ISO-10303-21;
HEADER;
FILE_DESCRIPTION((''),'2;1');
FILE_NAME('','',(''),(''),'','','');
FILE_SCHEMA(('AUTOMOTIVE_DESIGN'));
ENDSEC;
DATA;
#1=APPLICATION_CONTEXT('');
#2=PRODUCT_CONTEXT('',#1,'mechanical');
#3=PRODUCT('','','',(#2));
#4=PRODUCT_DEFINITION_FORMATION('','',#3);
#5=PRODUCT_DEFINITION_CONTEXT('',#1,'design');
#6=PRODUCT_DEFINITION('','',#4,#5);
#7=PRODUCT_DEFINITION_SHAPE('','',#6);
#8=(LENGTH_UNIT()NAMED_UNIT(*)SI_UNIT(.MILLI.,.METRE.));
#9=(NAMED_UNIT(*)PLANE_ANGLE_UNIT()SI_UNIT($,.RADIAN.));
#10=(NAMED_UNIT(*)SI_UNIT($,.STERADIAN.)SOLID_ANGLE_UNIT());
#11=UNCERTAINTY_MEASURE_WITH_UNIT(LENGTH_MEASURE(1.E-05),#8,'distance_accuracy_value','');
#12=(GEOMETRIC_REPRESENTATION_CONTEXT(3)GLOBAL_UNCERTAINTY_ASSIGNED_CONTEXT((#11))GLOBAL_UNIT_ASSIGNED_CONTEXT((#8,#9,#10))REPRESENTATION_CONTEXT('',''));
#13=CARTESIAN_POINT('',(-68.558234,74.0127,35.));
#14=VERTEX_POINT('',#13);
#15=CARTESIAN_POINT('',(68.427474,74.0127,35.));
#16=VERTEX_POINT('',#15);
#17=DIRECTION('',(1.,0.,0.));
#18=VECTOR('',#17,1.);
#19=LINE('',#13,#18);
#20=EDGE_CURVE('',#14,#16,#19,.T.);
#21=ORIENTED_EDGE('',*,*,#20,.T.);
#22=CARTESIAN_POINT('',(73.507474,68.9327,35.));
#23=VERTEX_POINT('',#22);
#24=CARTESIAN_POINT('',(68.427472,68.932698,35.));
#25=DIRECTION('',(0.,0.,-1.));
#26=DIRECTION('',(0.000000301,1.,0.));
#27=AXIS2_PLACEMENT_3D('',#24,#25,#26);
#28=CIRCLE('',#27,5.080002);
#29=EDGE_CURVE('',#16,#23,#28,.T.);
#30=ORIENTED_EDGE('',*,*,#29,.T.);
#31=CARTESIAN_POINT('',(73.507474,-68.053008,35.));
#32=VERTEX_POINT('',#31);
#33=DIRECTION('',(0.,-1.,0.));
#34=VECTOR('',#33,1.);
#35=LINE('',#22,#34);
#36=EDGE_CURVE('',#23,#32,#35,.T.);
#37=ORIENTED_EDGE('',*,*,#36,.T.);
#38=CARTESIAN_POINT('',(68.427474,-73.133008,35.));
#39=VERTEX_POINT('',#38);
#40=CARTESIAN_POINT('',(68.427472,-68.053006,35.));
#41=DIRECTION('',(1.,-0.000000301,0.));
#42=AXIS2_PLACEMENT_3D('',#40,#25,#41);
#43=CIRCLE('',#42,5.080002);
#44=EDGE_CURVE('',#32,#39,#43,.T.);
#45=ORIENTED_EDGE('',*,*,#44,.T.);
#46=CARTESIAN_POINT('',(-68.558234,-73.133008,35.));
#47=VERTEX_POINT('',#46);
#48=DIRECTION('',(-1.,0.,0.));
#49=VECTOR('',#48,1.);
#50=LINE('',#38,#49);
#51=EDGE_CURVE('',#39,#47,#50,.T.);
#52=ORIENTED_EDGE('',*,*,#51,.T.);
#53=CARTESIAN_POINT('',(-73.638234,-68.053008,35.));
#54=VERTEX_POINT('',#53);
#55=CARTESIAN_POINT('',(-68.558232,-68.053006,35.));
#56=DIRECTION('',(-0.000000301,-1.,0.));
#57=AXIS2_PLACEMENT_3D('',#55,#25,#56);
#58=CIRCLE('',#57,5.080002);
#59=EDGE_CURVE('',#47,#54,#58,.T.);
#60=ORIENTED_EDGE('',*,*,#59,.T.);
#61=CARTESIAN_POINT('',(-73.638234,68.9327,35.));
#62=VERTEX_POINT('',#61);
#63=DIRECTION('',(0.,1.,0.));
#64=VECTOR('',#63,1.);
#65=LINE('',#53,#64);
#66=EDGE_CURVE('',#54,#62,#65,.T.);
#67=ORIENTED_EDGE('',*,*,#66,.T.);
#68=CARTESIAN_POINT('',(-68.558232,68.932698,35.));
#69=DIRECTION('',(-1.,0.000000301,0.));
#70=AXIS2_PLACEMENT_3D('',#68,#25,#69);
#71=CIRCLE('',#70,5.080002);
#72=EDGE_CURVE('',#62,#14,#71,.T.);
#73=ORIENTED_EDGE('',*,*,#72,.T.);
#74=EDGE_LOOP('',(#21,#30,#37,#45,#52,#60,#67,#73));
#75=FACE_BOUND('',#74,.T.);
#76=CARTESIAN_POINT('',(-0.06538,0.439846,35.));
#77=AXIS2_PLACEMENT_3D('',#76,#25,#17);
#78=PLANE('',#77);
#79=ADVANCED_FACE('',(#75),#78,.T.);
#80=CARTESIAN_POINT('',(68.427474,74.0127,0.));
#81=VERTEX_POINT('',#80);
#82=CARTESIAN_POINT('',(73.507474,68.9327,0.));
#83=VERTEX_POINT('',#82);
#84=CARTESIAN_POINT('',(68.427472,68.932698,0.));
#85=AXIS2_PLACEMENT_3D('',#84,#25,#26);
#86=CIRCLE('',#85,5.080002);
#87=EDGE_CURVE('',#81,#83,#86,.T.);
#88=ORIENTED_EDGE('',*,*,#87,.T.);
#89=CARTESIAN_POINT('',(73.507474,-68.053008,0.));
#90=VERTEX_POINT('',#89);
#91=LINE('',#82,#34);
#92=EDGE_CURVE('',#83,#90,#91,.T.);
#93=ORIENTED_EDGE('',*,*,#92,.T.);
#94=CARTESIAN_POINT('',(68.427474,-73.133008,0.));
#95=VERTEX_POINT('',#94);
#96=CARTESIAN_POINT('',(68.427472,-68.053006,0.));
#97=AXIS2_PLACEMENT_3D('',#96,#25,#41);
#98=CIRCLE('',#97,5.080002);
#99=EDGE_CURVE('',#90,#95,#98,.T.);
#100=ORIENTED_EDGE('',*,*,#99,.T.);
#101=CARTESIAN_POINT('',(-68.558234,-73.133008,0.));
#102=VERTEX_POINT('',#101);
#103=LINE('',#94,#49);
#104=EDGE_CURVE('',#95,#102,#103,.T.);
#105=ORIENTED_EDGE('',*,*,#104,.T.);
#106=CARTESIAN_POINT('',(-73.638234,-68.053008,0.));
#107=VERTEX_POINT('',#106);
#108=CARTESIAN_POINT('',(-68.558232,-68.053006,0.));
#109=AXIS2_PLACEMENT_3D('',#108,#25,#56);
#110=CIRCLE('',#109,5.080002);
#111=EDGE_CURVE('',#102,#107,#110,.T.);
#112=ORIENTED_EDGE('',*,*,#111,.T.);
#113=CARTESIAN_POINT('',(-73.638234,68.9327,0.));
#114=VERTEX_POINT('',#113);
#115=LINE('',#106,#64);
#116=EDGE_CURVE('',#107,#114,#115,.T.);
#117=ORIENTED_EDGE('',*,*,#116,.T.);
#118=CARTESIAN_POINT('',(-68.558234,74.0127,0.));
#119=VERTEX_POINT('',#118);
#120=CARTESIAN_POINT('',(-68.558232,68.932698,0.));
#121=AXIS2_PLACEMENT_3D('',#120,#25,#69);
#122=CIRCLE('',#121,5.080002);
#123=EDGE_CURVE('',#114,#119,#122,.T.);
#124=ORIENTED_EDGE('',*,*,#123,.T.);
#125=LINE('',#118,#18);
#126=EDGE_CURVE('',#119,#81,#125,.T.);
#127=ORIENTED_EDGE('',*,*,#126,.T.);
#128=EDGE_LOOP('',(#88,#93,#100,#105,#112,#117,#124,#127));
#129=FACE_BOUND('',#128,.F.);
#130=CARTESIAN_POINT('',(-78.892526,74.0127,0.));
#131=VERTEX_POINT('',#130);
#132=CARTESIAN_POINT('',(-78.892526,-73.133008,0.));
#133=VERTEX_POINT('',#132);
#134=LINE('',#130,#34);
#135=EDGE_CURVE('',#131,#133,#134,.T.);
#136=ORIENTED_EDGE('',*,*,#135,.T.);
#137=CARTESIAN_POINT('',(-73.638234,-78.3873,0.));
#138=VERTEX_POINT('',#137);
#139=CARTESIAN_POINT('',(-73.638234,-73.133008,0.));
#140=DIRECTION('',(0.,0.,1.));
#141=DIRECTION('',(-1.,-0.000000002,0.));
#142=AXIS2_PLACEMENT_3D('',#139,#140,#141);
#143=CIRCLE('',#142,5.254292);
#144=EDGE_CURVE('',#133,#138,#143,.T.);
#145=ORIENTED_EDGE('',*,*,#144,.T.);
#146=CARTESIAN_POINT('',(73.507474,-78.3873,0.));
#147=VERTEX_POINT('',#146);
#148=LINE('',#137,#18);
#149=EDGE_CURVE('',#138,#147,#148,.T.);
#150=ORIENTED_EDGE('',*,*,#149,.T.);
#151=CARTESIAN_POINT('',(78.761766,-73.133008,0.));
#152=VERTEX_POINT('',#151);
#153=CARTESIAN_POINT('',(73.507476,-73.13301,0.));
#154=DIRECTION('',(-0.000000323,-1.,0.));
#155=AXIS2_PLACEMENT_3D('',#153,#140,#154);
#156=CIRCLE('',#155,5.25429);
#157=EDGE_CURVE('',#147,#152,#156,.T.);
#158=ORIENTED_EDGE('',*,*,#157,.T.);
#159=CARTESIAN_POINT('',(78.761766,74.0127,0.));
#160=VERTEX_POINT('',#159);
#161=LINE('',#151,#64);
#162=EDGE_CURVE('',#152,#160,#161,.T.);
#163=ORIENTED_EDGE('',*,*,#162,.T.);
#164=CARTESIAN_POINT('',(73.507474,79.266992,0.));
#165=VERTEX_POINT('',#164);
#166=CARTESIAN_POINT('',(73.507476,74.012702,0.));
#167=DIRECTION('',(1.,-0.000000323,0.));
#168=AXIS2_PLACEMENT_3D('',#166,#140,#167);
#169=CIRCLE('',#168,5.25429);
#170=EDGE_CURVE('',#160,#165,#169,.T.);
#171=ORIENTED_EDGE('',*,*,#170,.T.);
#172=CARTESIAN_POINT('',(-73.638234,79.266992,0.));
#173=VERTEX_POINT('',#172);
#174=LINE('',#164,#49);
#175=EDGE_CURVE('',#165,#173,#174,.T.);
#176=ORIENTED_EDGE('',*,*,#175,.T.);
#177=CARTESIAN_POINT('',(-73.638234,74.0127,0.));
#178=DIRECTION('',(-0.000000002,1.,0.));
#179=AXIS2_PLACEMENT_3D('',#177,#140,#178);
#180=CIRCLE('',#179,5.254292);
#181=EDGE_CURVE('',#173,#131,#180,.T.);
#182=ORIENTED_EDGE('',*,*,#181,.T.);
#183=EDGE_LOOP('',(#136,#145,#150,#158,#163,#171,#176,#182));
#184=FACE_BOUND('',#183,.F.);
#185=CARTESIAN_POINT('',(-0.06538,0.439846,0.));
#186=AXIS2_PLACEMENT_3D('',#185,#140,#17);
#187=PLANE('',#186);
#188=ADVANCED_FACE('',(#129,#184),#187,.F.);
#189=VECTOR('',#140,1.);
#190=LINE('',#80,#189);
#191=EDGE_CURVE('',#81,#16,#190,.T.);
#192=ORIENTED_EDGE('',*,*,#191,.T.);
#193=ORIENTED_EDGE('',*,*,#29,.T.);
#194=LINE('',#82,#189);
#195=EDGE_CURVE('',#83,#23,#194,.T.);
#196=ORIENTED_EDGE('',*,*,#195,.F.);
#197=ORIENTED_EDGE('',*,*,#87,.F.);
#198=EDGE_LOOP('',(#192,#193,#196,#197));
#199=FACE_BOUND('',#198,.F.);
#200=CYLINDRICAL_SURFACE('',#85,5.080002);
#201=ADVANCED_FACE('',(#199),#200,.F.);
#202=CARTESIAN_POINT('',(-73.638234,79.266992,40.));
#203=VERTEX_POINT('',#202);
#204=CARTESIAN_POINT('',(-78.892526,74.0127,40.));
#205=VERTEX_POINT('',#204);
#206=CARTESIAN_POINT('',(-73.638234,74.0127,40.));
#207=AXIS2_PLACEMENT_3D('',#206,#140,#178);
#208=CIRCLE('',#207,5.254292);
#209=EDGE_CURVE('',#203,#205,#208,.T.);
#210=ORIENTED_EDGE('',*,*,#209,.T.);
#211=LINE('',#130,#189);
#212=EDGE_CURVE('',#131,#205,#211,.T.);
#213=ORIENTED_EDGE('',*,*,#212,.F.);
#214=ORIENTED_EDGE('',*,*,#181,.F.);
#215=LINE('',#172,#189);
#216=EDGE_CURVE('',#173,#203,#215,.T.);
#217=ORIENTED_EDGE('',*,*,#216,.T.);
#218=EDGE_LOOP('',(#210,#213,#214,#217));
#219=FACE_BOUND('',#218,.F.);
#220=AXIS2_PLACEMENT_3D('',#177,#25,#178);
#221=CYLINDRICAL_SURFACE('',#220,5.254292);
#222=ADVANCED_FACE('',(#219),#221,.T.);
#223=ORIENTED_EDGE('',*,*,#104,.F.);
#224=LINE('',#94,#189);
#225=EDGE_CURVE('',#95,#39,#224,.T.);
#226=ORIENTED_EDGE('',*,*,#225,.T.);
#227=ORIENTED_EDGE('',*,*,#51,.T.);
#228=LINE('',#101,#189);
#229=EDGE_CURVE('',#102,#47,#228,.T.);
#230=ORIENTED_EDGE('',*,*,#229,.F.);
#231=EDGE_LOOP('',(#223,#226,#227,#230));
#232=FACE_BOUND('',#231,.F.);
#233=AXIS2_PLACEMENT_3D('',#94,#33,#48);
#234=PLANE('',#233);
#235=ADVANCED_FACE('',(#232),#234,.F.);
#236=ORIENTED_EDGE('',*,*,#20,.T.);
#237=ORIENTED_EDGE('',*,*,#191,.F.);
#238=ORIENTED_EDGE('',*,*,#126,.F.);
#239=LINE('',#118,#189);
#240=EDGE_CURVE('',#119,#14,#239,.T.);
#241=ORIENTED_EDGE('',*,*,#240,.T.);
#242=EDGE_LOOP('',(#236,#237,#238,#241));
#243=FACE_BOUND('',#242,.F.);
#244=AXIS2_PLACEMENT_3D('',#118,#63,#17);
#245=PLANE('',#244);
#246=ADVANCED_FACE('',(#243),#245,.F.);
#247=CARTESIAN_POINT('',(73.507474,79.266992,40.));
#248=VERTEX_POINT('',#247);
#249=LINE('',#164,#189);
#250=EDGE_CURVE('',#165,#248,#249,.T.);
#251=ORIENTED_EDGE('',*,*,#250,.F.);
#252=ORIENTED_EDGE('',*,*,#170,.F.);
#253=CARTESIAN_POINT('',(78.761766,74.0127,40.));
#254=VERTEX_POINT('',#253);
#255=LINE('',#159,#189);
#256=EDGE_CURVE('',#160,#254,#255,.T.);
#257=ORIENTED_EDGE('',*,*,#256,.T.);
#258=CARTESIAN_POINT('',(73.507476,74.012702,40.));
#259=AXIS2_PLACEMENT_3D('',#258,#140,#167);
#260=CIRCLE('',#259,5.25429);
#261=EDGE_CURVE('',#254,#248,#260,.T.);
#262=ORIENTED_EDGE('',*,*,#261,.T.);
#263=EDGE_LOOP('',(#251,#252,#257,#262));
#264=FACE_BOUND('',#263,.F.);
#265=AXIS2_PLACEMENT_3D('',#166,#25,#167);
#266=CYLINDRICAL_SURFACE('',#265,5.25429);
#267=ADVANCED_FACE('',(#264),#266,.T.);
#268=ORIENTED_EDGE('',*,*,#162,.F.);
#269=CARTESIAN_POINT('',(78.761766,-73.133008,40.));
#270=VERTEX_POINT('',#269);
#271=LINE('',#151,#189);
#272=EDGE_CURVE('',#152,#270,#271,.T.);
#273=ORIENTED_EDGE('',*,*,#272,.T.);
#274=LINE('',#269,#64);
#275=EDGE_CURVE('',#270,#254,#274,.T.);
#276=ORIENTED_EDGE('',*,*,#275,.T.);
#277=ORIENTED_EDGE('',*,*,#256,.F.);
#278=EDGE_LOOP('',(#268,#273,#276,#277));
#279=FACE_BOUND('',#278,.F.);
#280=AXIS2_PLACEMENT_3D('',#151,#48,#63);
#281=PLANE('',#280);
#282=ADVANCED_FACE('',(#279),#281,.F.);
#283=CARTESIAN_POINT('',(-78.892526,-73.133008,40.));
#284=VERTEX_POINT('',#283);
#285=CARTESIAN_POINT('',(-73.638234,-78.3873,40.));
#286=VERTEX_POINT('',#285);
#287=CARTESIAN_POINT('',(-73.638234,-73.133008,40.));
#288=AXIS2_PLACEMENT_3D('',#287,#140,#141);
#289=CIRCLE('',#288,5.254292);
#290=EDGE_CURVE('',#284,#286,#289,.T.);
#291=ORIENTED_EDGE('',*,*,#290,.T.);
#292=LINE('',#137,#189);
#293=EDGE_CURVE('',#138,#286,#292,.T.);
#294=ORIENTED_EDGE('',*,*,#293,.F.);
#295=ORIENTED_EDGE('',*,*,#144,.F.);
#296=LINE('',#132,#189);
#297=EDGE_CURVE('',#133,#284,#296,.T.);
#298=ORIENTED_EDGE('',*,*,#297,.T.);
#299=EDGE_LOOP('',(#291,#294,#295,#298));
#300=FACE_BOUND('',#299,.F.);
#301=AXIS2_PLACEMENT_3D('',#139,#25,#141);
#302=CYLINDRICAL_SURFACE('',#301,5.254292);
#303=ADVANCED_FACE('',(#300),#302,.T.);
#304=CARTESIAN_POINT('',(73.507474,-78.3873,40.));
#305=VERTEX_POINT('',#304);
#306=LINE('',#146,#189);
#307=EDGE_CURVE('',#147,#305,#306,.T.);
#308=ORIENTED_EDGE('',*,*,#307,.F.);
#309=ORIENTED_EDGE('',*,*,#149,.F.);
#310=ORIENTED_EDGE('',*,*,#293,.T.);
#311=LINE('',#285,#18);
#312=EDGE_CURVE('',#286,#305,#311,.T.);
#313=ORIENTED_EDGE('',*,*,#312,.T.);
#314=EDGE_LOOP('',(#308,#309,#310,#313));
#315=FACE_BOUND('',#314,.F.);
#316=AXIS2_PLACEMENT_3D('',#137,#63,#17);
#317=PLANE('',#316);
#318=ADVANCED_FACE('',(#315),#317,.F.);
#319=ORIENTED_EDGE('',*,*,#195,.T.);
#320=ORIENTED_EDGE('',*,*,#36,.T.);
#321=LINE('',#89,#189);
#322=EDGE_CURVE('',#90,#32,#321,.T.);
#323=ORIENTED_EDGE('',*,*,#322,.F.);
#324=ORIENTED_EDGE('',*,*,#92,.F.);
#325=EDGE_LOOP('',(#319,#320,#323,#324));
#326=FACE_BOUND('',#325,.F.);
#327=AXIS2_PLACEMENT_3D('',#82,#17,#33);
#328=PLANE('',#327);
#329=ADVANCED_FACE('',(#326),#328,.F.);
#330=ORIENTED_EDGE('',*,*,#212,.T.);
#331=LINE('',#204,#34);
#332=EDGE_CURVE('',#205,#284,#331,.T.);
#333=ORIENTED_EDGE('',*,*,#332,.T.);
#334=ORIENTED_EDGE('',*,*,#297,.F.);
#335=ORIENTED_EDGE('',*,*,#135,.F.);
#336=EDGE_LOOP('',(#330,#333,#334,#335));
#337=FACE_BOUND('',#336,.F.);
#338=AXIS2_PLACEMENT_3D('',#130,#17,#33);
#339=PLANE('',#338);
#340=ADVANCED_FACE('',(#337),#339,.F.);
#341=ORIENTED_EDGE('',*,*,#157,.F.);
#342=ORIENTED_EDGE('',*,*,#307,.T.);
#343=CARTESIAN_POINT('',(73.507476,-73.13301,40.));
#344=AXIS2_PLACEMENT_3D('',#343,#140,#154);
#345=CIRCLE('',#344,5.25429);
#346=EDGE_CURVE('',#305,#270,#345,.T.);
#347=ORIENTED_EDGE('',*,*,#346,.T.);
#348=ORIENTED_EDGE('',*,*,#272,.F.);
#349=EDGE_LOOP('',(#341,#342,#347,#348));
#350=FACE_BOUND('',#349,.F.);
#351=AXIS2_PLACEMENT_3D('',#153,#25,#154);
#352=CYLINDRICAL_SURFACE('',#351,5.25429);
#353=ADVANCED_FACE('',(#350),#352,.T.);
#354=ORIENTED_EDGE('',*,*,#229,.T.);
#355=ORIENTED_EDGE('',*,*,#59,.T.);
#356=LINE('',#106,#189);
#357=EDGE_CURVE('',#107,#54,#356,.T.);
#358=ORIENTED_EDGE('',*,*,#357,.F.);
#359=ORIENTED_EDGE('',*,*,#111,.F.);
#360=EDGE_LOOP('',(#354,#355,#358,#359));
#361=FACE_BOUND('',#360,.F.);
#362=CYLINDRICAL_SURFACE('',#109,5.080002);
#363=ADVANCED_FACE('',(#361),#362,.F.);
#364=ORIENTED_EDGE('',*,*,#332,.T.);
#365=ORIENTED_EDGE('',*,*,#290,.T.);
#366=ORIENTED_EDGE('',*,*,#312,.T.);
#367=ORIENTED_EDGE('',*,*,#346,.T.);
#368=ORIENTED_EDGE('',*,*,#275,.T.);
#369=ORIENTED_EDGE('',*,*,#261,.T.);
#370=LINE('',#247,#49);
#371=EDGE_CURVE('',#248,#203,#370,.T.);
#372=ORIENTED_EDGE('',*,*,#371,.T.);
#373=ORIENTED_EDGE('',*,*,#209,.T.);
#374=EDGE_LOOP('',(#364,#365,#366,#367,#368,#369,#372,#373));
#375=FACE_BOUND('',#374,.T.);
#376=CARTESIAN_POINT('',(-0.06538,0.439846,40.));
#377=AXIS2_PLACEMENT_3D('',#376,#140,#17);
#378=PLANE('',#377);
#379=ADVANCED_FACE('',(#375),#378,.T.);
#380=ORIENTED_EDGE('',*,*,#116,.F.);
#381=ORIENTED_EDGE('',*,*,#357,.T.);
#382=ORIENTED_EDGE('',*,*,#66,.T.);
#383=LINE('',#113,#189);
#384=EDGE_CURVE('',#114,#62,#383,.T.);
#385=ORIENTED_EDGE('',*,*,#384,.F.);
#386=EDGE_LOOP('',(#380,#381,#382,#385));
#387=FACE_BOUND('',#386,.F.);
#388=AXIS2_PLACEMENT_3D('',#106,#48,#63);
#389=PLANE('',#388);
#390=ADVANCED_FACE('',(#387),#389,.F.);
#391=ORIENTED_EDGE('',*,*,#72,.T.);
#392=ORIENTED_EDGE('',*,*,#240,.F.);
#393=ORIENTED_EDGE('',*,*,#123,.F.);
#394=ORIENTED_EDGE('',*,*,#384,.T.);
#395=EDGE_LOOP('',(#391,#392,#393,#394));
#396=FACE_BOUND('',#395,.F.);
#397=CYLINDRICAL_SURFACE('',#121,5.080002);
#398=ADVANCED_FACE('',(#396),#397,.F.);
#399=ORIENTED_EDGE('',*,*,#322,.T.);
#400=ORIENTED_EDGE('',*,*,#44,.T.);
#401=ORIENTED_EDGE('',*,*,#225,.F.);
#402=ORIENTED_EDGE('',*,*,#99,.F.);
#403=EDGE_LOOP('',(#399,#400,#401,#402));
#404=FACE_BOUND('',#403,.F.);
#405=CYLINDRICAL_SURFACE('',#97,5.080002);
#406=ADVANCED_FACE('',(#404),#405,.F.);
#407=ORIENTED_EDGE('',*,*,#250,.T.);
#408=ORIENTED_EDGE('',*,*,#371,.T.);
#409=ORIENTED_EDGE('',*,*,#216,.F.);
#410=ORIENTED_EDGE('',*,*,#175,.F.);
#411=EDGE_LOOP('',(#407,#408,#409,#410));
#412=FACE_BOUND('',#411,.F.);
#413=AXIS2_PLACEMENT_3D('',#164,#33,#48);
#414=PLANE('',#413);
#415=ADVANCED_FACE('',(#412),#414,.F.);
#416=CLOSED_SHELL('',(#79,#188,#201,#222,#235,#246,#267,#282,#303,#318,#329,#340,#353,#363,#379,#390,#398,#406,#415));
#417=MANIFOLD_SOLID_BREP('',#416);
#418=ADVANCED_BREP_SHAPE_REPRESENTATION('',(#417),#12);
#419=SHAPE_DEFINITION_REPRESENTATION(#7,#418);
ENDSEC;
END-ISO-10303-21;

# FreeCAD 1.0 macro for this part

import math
import FreeCAD as App
import Part
import Sketcher
from FreeCAD import Vector

doc = App.newDocument("Part")
body = doc.addObject("PartDesign::Body", "Body")

sketch1 = body.newObject("Sketcher::SketchObject", "Sketch")
sketch1.AttachmentSupport = (doc.getObject("XY_Plane"), [""])
sketch1.MapMode = "FlatFace"
sketch1.addGeometry([
    Part.LineSegment(Vector(73.507474, 79.266992, 0), Vector(-73.638234, 79.266992, 0)),
    Part.ArcOfCircle(Part.Circle(Vector(-73.638234, 74.0127, 0), Vector(0, 0, 1), 5.254292), math.radians(90), math.radians(180)),
    Part.LineSegment(Vector(-78.892526, 74.0127, 0), Vector(-78.892526, -73.133008, 0)),
    Part.ArcOfCircle(Part.Circle(Vector(-73.638234, -73.133008, 0), Vector(0, 0, 1), 5.254292), math.radians(-180), math.radians(-90)),
    Part.LineSegment(Vector(-73.638234, -78.3873, 0), Vector(73.507474, -78.3873, 0)),
    Part.ArcOfCircle(Part.Circle(Vector(73.507476, -73.13301, 0), Vector(0, 0, 1), 5.25429), math.radians(-90.000018), math.radians(0.000018)),
    Part.LineSegment(Vector(78.761766, -73.133008, 0), Vector(78.761766, 74.0127, 0)),
    Part.ArcOfCircle(Part.Circle(Vector(73.507476, 74.012702, 0), Vector(0, 0, 1), 5.25429), math.radians(-0.000018), math.radians(90.000018)),
], False)
sketch1.addConstraint([
    Sketcher.Constraint("Tangent", 0, 2, 1, 1),
    Sketcher.Constraint("Tangent", 1, 2, 2, 1),
    Sketcher.Constraint("Tangent", 2, 2, 3, 1),
    Sketcher.Constraint("Tangent", 3, 2, 4, 1),
    Sketcher.Constraint("Tangent", 4, 2, 5, 1),
    Sketcher.Constraint("Tangent", 5, 2, 6, 1),
    Sketcher.Constraint("Tangent", 6, 2, 7, 1),
    Sketcher.Constraint("Tangent", 7, 2, 0, 1),
    Sketcher.Constraint("Horizontal", 0),
    Sketcher.Constraint("Vertical", 2),
    Sketcher.Constraint("Horizontal", 4),
    Sketcher.Constraint("Vertical", 6),
    Sketcher.Constraint("Equal", 1, 3),
    Sketcher.Constraint("Equal", 3, 5),
    Sketcher.Constraint("Equal", 5, 7),
    Sketcher.Constraint("Equal", 4, 2),
    Sketcher.Constraint("DistanceY", 3, 3, 0, 2, 152.4),
    Sketcher.Constraint("Radius", 5, 5.25429),
    Sketcher.Constraint("DistanceY", -1, 1, 1, 3, 74.0127),
    Sketcher.Constraint("DistanceX", 1, 3, -1, 1, 73.638234),
])
pad1 = body.newObject("PartDesign::Pad", "Pad")
pad1.Profile = sketch1
pad1.Length = 40

sketch2 = body.newObject("Sketcher::SketchObject", "Sketch001")
sketch2.AttachmentSupport = (doc.getObject("XY_Plane"), [""])
sketch2.MapMode = "FlatFace"
sketch2.addGeometry([
    Part.LineSegment(Vector(68.427474, -73.133008, 0), Vector(-68.558234, -73.133008, 0)),
    Part.ArcOfCircle(Part.Circle(Vector(-68.558232, -68.053006, 0), Vector(0, 0, 1), 5.080002), math.radians(-179.999983), math.radians(-90.000017)),
    Part.LineSegment(Vector(-73.638234, -68.053008, 0), Vector(-73.638234, 68.9327, 0)),
    Part.ArcOfCircle(Part.Circle(Vector(-68.558232, 68.932698, 0), Vector(0, 0, 1), 5.080002), math.radians(90.000017), math.radians(179.999983)),
    Part.LineSegment(Vector(-68.558234, 74.0127, 0), Vector(68.427474, 74.0127, 0)),
    Part.ArcOfCircle(Part.Circle(Vector(68.427472, 68.932698, 0), Vector(0, 0, 1), 5.080002), math.radians(0.000017), math.radians(89.999983)),
    Part.LineSegment(Vector(73.507474, 68.9327, 0), Vector(73.507474, -68.053008, 0)),
    Part.ArcOfCircle(Part.Circle(Vector(68.427472, -68.053006, 0), Vector(0, 0, 1), 5.080002), math.radians(-89.999983), math.radians(-0.000017)),
], False)
sketch2.addConstraint([
    Sketcher.Constraint("Tangent", 0, 2, 1, 2),
    Sketcher.Constraint("Tangent", 1, 1, 2, 1),
    Sketcher.Constraint("Tangent", 2, 2, 3, 2),
    Sketcher.Constraint("Tangent", 3, 1, 4, 1),
    Sketcher.Constraint("Tangent", 4, 2, 5, 2),
    Sketcher.Constraint("Tangent", 5, 1, 6, 1),
    Sketcher.Constraint("Tangent", 6, 2, 7, 2),
    Sketcher.Constraint("Tangent", 7, 1, 0, 1),
    Sketcher.Constraint("Horizontal", 0),
    Sketcher.Constraint("Vertical", 2),
    Sketcher.Constraint("Horizontal", 4),
    Sketcher.Constraint("Vertical", 6),
    Sketcher.Constraint("Equal", 1, 3),
    Sketcher.Constraint("Equal", 3, 5),
    Sketcher.Constraint("Equal", 5, 7),
    Sketcher.Constraint("Equal", 4, 2),
    Sketcher.Constraint("Radius", 1, 5.080002),
    Sketcher.Constraint("DistanceY", -1, 1, 3, 3, 68.932698),
    Sketcher.Constraint("DistanceX", 0, 2, 0, 1, 136.985708),
    Sketcher.Constraint("DistanceX", 1, 3, -1, 1, 68.558232),
])
pocket1 = body.newObject("PartDesign::Pocket", "Pocket")
pocket1.Profile = sketch2
pocket1.Length = 35
pocket1.Reversed = True

doc.recompute()
